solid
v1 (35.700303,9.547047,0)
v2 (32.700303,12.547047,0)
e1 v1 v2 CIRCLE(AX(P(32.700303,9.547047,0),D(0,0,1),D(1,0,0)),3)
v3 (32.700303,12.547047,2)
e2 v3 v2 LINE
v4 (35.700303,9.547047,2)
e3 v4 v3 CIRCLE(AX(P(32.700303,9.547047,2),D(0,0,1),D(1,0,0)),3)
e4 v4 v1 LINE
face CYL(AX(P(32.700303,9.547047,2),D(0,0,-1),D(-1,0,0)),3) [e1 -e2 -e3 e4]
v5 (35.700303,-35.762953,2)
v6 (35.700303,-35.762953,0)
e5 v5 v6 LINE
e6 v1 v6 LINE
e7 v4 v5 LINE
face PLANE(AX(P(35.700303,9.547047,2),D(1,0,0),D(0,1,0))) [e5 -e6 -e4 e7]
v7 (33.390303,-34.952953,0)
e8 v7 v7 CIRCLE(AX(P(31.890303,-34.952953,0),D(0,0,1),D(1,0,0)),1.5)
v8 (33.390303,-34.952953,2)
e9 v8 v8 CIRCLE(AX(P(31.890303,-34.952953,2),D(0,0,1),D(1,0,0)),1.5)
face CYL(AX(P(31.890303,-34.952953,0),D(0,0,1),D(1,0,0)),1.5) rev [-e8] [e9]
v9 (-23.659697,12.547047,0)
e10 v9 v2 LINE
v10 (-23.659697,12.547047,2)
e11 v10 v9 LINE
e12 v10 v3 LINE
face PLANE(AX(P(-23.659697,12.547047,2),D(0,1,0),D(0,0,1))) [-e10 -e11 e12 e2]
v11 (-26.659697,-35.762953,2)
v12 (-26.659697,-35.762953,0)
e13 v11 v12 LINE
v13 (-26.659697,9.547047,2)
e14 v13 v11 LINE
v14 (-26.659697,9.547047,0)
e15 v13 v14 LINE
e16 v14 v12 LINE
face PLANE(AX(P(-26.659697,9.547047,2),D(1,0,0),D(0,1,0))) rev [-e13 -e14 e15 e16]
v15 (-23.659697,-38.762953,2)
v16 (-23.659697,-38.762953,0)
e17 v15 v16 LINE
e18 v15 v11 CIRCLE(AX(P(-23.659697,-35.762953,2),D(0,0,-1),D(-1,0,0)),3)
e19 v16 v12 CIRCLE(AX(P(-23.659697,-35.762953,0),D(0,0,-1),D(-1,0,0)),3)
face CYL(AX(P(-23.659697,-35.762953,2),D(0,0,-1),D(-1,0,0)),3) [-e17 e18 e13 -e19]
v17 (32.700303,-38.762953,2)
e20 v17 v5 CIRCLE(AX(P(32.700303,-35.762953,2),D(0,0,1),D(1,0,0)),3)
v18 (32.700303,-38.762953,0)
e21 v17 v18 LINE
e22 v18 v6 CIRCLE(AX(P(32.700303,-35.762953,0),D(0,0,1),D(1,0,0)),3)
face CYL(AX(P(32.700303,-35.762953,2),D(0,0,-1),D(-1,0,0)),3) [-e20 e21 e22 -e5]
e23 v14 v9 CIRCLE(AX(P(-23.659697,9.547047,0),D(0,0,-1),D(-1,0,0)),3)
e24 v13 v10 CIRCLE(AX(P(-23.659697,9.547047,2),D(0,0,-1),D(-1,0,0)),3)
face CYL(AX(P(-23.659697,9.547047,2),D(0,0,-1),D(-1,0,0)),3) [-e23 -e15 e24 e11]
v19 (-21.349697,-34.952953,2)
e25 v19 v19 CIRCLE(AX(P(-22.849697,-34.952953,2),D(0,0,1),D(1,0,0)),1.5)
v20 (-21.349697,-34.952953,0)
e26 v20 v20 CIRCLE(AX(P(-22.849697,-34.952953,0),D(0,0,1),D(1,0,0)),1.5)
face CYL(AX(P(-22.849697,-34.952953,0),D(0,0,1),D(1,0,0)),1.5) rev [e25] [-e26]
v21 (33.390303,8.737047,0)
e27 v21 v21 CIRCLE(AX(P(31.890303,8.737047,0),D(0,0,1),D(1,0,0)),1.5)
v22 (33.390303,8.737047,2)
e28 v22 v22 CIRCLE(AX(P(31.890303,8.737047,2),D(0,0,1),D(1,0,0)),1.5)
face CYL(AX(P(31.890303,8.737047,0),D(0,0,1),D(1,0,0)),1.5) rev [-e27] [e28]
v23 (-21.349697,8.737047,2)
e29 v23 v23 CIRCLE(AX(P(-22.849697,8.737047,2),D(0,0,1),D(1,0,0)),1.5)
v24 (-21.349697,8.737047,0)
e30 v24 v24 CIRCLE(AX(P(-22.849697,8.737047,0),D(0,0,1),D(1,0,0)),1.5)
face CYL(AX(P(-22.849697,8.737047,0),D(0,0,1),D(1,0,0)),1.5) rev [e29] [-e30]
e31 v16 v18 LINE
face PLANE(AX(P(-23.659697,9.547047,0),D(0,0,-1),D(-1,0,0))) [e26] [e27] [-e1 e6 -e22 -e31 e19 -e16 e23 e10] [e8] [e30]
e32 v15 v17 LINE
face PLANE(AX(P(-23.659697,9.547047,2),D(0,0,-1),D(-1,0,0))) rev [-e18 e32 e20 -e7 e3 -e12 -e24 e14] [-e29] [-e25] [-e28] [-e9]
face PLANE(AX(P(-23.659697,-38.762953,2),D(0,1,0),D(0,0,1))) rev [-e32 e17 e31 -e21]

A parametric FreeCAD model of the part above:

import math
import FreeCAD as App
import Part
import Sketcher
Q = App.Units.Quantity

doc = App.newDocument("Part")
body = doc.addObject("PartDesign::Body", "Body")

# Sketch on XY plane
sketch1 = doc.addObject("Sketcher::SketchObject", "Sketch")
body.addObject(sketch1)
sketch1.AttachmentSupport = (doc.XY_Plane, [""])
sketch1.MapMode = "FlatFace"
sketch1.addGeometry([
    Part.LineSegment(App.Vector(32.7, 12.5, 0), App.Vector(-23.7, 12.5, 0)),  # 0
    Part.ArcOfCircle(Part.Circle(App.Vector(-23.7, 9.5, 0), App.Vector(0, 0, 1), 3), math.radians(90), math.radians(180)),  # 1
    Part.LineSegment(App.Vector(-26.7, 9.5, 0), App.Vector(-26.7, -35.8, 0)),  # 2
    Part.ArcOfCircle(Part.Circle(App.Vector(-23.7, -35.8, 0), App.Vector(0, 0, 1), 3), math.radians(-180), math.radians(-90)),  # 3
    Part.LineSegment(App.Vector(-23.7, -38.8, 0), App.Vector(32.7, -38.8, 0)),  # 4
    Part.ArcOfCircle(Part.Circle(App.Vector(32.7, -35.8, 0), App.Vector(0, 0, 1), 3), math.radians(-90), math.radians(0)),  # 5
    Part.LineSegment(App.Vector(35.7, -35.8, 0), App.Vector(35.7, 9.5, 0)),  # 6
    Part.ArcOfCircle(Part.Circle(App.Vector(32.7, 9.5, 0), App.Vector(0, 0, 1), 3), math.radians(0), math.radians(90)),  # 7
], False)
sketch1.addConstraint([
    Sketcher.Constraint("Tangent", 0, 2, 1, 1),
    Sketcher.Constraint("Tangent", 1, 2, 2, 1),
    Sketcher.Constraint("Tangent", 2, 2, 3, 1),
    Sketcher.Constraint("Tangent", 3, 2, 4, 1),
    Sketcher.Constraint("Tangent", 4, 2, 5, 1),
    Sketcher.Constraint("Tangent", 5, 2, 6, 1),
    Sketcher.Constraint("Tangent", 6, 2, 7, 1),
    Sketcher.Constraint("Tangent", 7, 2, 0, 1),
    Sketcher.Constraint("Horizontal", 0),
    Sketcher.Constraint("Vertical", 2),
    Sketcher.Constraint("Horizontal", 4),
    Sketcher.Constraint("Vertical", 6),
    Sketcher.Constraint("Equal", 1, 3),
    Sketcher.Constraint("Equal", 3, 5),
    Sketcher.Constraint("Equal", 5, 7),
    Sketcher.Constraint("Radius", 1, Q("3 mm")),
    Sketcher.Constraint("DistanceX", 0, 2, 0, 1, Q("56.36 mm")),
    Sketcher.Constraint("DistanceY", 2, 2, 2, 1, Q("45.31 mm")),
    Sketcher.Constraint("DistanceX", 1, 3, -1, 1, Q("23.659697 mm")),
    Sketcher.Constraint("DistanceY", -1, 1, 1, 3, Q("9.547047 mm")),
])
pad1 = doc.addObject("PartDesign::Pad", "Pad")
body.addObject(pad1)
pad1.Profile = sketch1
pad1.Length = 2

# Sketch on XY plane
sketch2 = doc.addObject("Sketcher::SketchObject", "Sketch001")
body.addObject(sketch2)
sketch2.AttachmentSupport = (doc.XY_Plane, [""])
sketch2.MapMode = "FlatFace"
sketch2.AttachmentOffset = App.Placement(App.Vector(0, 0, 2), App.Rotation())
sketch2.addGeometry([
    Part.Circle(App.Vector(-22.8, 8.7, 0), App.Vector(0, 0, 1), 1.5),
    Part.Circle(App.Vector(31.9, 8.7, 0), App.Vector(0, 0, 1), 1.5),
    Part.Circle(App.Vector(-22.8, -35, 0), App.Vector(0, 0, 1), 1.5),
    Part.Circle(App.Vector(31.9, -35, 0), App.Vector(0, 0, 1), 1.5),
], False)
sketch2.addConstraint([
    Sketcher.Constraint("Equal", 0, 1),
    Sketcher.Constraint("Equal", 1, 2),
    Sketcher.Constraint("Equal", 2, 3),
    Sketcher.Constraint("Horizontal", 0, 3, 1, 3),
    Sketcher.Constraint("Horizontal", 2, 3, 3, 3),
    Sketcher.Constraint("Vertical", 0, 3, 2, 3),
    Sketcher.Constraint("Vertical", 1, 3, 3, 3),
    Sketcher.Constraint("Diameter", 0, Q("3 mm")),
    Sketcher.Constraint("DistanceX", 0, 3, 1, 3, Q("54.74 mm")),
    Sketcher.Constraint("DistanceY", 2, 3, 0, 3, Q("43.69 mm")),
    Sketcher.Constraint("DistanceX", 0, 3, -1, 1, Q("22.849697 mm")),
    Sketcher.Constraint("DistanceY", -1, 1, 0, 3, Q("8.737047 mm")),
])
pocket1 = doc.addObject("PartDesign::Pocket", "Pocket")
body.addObject(pocket1)
pocket1.Profile = sketch2
pocket1.Length = 2

doc.recompute()
